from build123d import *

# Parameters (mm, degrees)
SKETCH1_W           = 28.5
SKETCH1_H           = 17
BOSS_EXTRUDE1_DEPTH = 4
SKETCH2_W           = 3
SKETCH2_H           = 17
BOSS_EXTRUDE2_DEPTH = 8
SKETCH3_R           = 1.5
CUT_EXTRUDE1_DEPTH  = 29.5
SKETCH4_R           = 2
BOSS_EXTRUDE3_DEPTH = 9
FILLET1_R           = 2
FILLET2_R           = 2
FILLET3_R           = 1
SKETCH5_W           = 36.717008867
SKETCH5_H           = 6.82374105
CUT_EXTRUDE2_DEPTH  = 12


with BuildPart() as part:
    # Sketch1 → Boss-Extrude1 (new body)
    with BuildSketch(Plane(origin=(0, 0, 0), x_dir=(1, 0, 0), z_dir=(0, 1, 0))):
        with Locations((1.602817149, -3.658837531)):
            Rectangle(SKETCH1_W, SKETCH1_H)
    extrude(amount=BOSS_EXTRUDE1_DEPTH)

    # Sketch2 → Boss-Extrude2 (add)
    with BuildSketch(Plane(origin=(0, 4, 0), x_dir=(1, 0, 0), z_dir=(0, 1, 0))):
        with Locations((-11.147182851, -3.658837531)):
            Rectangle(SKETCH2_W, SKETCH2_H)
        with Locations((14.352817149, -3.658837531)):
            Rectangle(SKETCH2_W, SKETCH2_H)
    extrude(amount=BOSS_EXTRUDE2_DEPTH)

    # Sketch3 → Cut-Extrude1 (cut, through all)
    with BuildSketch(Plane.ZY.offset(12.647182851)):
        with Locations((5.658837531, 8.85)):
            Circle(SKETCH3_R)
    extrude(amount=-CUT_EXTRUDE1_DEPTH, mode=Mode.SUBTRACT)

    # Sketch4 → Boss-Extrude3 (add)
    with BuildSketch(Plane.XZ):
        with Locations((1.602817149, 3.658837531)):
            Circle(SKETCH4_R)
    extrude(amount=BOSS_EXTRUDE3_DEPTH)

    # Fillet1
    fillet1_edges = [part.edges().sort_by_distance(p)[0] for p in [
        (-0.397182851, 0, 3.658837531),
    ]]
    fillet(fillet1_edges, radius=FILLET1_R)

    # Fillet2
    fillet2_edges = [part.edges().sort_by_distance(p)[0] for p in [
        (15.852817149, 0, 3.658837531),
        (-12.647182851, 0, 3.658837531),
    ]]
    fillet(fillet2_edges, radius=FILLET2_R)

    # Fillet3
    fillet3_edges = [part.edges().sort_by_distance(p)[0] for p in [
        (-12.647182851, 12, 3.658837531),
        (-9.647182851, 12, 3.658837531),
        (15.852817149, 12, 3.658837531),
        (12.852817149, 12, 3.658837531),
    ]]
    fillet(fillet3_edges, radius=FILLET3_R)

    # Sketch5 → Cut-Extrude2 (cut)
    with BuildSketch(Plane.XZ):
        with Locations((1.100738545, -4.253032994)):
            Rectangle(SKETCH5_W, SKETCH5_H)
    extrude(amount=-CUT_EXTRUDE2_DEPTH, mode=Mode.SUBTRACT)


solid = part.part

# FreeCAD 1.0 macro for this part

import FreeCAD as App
import Part
import Sketcher

V = App.Vector
Q = App.Units.Quantity


def edges_at(feature, points):
    """Names of the edges that pass closest to the given points."""
    edges = feature.Shape.Edges
    near = lambda p: min(range(len(edges)), key=lambda i: edges[i].distToShape(Part.Vertex(*p))[0])
    return sorted({f"Edge{near(p) + 1}" for p in points})


def add_polygon(sketch, points):
    """Adds a closed chain of lines whose ends are joined by coincident constraints."""
    first, n = sketch.GeometryCount, len(points)
    for a, b in zip(points, points[1:] + points[:1]):
        sketch.addGeometry(Part.LineSegment(App.Vector(*a, 0), App.Vector(*b, 0)), False)
    for i in range(n):
        sketch.addConstraint(Sketcher.Constraint("Coincident", first + i, 2, first + (i + 1) % n, 1))

doc = App.newDocument("Part")
params = doc.addObject("Spreadsheet::Sheet", "Params")
for row, (alias, value) in enumerate([
    ("sketch1_height", "17 mm"),
    ("sketch1_width", "28.5 mm"),
    ("pad1_length", "4 mm"),
    ("sketch2_width", "3 mm"),
    ("sketch2_height", "17 mm"),
    ("pad2_length", "8 mm"),
    ("sketch3_diameter", "3 mm"),
    ("sketch4_diameter", "4 mm"),
    ("pad3_length", "9 mm"),
    ("fillet_radius", "2 mm"),
    ("fillet2_radius", "2 mm"),
    ("fillet3_radius", "1 mm"),
    ("pocket2_length", "12 mm"),
], start=1):
    params.set(f"A{row}", alias)
    params.set(f"B{row}", "=" + value)
    params.setAlias(f"B{row}", alias)

body = doc.addObject("PartDesign::Body", "Body")

sketch1 = body.newObject("Sketcher::SketchObject", "Sketch")
sketch1.AttachmentSupport = (doc.getObject("XZ_Plane"), [""])
sketch1.MapMode = "FlatFace"
add_polygon(sketch1, [(-13, -5), (-13, 12), (16, 12), (16, -5)])
sketch1.addConstraint(Sketcher.Constraint("Vertical", 0))
sketch1.addConstraint(Sketcher.Constraint("Horizontal", 1))
sketch1.addConstraint(Sketcher.Constraint("Vertical", 2))
sketch1.addConstraint(Sketcher.Constraint("Horizontal", 3))
sketch1.addConstraint(Sketcher.Constraint("DistanceY", 0, 1, 0, 2, Q("17 mm")))
sketch1.addConstraint(Sketcher.Constraint("DistanceX", 1, 1, 1, 2, Q("28.5 mm")))
sketch1.addConstraint(Sketcher.Constraint("DistanceX", 0, 2, -1, 1, Q("12.647183 mm")))
sketch1.addConstraint(Sketcher.Constraint("DistanceY", -1, 1, 0, 2, Q("12.158838 mm")))
sketch1.setExpression("Constraints[8]", "Params.sketch1_height")
sketch1.setExpression("Constraints[9]", "Params.sketch1_width")
pad1 = body.newObject("PartDesign::Pad", "Pad")
pad1.Profile = sketch1
pad1.setExpression("Length", "Params.pad1_length")
pad1.Reversed = True

sketch2 = body.newObject("Sketcher::SketchObject", "Sketch001")
sketch2.AttachmentSupport = (doc.getObject("XZ_Plane"), [""])
sketch2.MapMode = "FlatFace"
sketch2.AttachmentOffset = App.Placement(V(0, 0, -4), App.Rotation())
add_polygon(sketch2, [(-12.6, -4.8), (-12.6, 12.2), (-9.6, 12.2), (-9.6, -4.8)])
add_polygon(sketch2, [(12.9, -4.8), (12.9, 12.2), (15.9, 12.2), (15.9, -4.8)])
sketch2.addConstraint(Sketcher.Constraint("Vertical", 0))
sketch2.addConstraint(Sketcher.Constraint("Horizontal", 1))
sketch2.addConstraint(Sketcher.Constraint("Vertical", 2))
sketch2.addConstraint(Sketcher.Constraint("Horizontal", 3))
sketch2.addConstraint(Sketcher.Constraint("Vertical", 4))
sketch2.addConstraint(Sketcher.Constraint("Horizontal", 5))
sketch2.addConstraint(Sketcher.Constraint("Vertical", 6))
sketch2.addConstraint(Sketcher.Constraint("Horizontal", 7))
sketch2.addConstraint(Sketcher.Constraint("Horizontal", 1, 2, 4, 2))
sketch2.addConstraint(Sketcher.Constraint("Horizontal", 3, 2, 6, 2))
sketch2.addConstraint(Sketcher.Constraint("Equal", 3, 5))
sketch2.addConstraint(Sketcher.Constraint("DistanceX", 1, 1, 1, 2, Q("3 mm")))
sketch2.addConstraint(Sketcher.Constraint("DistanceY", 0, 1, 0, 2, Q("17 mm")))
sketch2.addConstraint(Sketcher.Constraint("DistanceX", 1, 2, 4, 2, Q("22.5 mm")))
sketch2.addConstraint(Sketcher.Constraint("DistanceX", 0, 2, -1, 1, Q("12.647183 mm")))
sketch2.addConstraint(Sketcher.Constraint("DistanceY", -1, 1, 0, 2, Q("12.158838 mm")))
sketch2.setExpression("Constraints[19]", "Params.sketch2_width")
sketch2.setExpression("Constraints[20]", "Params.sketch2_height")
pad2 = body.newObject("PartDesign::Pad", "Pad001")
pad2.Profile = sketch2
pad2.setExpression("Length", "Params.pad2_length")
pad2.Reversed = True

sketch3 = body.newObject("Sketcher::SketchObject", "Sketch002")
sketch3.AttachmentSupport = (doc.getObject("YZ_Plane"), [""])
sketch3.MapMode = "FlatFace"
sketch3.AttachmentOffset = App.Placement(V(0, 0, -12.647183), App.Rotation())
sketch3.addGeometry(Part.Circle(V(8.8, 5.7, 0), V(0, 0, 1), 1.5), False)
sketch3.addConstraint(Sketcher.Constraint("Diameter", 0, Q("3 mm")))
sketch3.addConstraint(Sketcher.Constraint("DistanceX", -1, 1, 0, 3, Q("8.85 mm")))
sketch3.addConstraint(Sketcher.Constraint("DistanceY", -1, 1, 0, 3, Q("5.658838 mm")))
sketch3.setExpression("Constraints[0]", "Params.sketch3_diameter")
pocket1 = body.newObject("PartDesign::Pocket", "Pocket")
pocket1.Profile = sketch3
pocket1.Type = "ThroughAll"
pocket1.Reversed = True

sketch4 = body.newObject("Sketcher::SketchObject", "Sketch003")
sketch4.AttachmentSupport = (doc.getObject("XZ_Plane"), [""])
sketch4.MapMode = "FlatFace"
sketch4.addGeometry(Part.Circle(V(1.6, 3.7, 0), V(0, 0, 1), 2), False)
sketch4.addConstraint(Sketcher.Constraint("Diameter", 0, Q("4 mm")))
sketch4.addConstraint(Sketcher.Constraint("DistanceX", -1, 1, 0, 3, Q("1.602817 mm")))
sketch4.addConstraint(Sketcher.Constraint("DistanceY", -1, 1, 0, 3, Q("3.658838 mm")))
sketch4.setExpression("Constraints[0]", "Params.sketch4_diameter")
pad3 = body.newObject("PartDesign::Pad", "Pad002")
pad3.Profile = sketch4
pad3.setExpression("Length", "Params.pad3_length")
doc.recompute()

fillet = body.newObject("PartDesign::Fillet", "Fillet")
fillet.Base = (pad3, edges_at(pad3, [(-0.397, 0, 3.659)]))
fillet.setExpression("Radius", "Params.fillet_radius")
doc.recompute()

fillet2 = body.newObject("PartDesign::Fillet", "Fillet001")
fillet2.Base = (fillet, edges_at(fillet, [(15.853, 0, 3.659), (-12.647, 0, 3.659)]))
fillet2.setExpression("Radius", "Params.fillet2_radius")
doc.recompute()

fillet3 = body.newObject("PartDesign::Fillet", "Fillet002")
fillet3.Base = (fillet2, edges_at(fillet2, [
    (-12.647, 12, 3.659),
    (-9.647, 12, 3.659),
    (15.853, 12, 3.659),
    (12.853, 12, 3.659),
]))
fillet3.setExpression("Radius", "Params.fillet3_radius")

sketch5 = body.newObject("Sketcher::SketchObject", "Sketch004")
sketch5.AttachmentSupport = (doc.getObject("XZ_Plane"), [""])
sketch5.MapMode = "FlatFace"
add_polygon(sketch5, [(-17, -1), (-17, -8), (19, -8), (19, -1)])
sketch5.addConstraint(Sketcher.Constraint("Vertical", 0))
sketch5.addConstraint(Sketcher.Constraint("Horizontal", 1))
sketch5.addConstraint(Sketcher.Constraint("Vertical", 2))
sketch5.addConstraint(Sketcher.Constraint("Horizontal", 3))
sketch5.addConstraint(Sketcher.Constraint("DistanceX", 1, 1, 1, 2, Q("36.717009 mm")))
sketch5.addConstraint(Sketcher.Constraint("DistanceY", 0, 2, 0, 1, Q("6.823741 mm")))
sketch5.addConstraint(Sketcher.Constraint("DistanceX", 0, 2, -1, 1, Q("17.257766 mm")))
sketch5.addConstraint(Sketcher.Constraint("DistanceY", 0, 2, -1, 1, Q("7.664904 mm")))
pocket2 = body.newObject("PartDesign::Pocket", "Pocket001")
pocket2.Profile = sketch5
pocket2.setExpression("Length", "Params.pocket2_length")

doc.recompute()
